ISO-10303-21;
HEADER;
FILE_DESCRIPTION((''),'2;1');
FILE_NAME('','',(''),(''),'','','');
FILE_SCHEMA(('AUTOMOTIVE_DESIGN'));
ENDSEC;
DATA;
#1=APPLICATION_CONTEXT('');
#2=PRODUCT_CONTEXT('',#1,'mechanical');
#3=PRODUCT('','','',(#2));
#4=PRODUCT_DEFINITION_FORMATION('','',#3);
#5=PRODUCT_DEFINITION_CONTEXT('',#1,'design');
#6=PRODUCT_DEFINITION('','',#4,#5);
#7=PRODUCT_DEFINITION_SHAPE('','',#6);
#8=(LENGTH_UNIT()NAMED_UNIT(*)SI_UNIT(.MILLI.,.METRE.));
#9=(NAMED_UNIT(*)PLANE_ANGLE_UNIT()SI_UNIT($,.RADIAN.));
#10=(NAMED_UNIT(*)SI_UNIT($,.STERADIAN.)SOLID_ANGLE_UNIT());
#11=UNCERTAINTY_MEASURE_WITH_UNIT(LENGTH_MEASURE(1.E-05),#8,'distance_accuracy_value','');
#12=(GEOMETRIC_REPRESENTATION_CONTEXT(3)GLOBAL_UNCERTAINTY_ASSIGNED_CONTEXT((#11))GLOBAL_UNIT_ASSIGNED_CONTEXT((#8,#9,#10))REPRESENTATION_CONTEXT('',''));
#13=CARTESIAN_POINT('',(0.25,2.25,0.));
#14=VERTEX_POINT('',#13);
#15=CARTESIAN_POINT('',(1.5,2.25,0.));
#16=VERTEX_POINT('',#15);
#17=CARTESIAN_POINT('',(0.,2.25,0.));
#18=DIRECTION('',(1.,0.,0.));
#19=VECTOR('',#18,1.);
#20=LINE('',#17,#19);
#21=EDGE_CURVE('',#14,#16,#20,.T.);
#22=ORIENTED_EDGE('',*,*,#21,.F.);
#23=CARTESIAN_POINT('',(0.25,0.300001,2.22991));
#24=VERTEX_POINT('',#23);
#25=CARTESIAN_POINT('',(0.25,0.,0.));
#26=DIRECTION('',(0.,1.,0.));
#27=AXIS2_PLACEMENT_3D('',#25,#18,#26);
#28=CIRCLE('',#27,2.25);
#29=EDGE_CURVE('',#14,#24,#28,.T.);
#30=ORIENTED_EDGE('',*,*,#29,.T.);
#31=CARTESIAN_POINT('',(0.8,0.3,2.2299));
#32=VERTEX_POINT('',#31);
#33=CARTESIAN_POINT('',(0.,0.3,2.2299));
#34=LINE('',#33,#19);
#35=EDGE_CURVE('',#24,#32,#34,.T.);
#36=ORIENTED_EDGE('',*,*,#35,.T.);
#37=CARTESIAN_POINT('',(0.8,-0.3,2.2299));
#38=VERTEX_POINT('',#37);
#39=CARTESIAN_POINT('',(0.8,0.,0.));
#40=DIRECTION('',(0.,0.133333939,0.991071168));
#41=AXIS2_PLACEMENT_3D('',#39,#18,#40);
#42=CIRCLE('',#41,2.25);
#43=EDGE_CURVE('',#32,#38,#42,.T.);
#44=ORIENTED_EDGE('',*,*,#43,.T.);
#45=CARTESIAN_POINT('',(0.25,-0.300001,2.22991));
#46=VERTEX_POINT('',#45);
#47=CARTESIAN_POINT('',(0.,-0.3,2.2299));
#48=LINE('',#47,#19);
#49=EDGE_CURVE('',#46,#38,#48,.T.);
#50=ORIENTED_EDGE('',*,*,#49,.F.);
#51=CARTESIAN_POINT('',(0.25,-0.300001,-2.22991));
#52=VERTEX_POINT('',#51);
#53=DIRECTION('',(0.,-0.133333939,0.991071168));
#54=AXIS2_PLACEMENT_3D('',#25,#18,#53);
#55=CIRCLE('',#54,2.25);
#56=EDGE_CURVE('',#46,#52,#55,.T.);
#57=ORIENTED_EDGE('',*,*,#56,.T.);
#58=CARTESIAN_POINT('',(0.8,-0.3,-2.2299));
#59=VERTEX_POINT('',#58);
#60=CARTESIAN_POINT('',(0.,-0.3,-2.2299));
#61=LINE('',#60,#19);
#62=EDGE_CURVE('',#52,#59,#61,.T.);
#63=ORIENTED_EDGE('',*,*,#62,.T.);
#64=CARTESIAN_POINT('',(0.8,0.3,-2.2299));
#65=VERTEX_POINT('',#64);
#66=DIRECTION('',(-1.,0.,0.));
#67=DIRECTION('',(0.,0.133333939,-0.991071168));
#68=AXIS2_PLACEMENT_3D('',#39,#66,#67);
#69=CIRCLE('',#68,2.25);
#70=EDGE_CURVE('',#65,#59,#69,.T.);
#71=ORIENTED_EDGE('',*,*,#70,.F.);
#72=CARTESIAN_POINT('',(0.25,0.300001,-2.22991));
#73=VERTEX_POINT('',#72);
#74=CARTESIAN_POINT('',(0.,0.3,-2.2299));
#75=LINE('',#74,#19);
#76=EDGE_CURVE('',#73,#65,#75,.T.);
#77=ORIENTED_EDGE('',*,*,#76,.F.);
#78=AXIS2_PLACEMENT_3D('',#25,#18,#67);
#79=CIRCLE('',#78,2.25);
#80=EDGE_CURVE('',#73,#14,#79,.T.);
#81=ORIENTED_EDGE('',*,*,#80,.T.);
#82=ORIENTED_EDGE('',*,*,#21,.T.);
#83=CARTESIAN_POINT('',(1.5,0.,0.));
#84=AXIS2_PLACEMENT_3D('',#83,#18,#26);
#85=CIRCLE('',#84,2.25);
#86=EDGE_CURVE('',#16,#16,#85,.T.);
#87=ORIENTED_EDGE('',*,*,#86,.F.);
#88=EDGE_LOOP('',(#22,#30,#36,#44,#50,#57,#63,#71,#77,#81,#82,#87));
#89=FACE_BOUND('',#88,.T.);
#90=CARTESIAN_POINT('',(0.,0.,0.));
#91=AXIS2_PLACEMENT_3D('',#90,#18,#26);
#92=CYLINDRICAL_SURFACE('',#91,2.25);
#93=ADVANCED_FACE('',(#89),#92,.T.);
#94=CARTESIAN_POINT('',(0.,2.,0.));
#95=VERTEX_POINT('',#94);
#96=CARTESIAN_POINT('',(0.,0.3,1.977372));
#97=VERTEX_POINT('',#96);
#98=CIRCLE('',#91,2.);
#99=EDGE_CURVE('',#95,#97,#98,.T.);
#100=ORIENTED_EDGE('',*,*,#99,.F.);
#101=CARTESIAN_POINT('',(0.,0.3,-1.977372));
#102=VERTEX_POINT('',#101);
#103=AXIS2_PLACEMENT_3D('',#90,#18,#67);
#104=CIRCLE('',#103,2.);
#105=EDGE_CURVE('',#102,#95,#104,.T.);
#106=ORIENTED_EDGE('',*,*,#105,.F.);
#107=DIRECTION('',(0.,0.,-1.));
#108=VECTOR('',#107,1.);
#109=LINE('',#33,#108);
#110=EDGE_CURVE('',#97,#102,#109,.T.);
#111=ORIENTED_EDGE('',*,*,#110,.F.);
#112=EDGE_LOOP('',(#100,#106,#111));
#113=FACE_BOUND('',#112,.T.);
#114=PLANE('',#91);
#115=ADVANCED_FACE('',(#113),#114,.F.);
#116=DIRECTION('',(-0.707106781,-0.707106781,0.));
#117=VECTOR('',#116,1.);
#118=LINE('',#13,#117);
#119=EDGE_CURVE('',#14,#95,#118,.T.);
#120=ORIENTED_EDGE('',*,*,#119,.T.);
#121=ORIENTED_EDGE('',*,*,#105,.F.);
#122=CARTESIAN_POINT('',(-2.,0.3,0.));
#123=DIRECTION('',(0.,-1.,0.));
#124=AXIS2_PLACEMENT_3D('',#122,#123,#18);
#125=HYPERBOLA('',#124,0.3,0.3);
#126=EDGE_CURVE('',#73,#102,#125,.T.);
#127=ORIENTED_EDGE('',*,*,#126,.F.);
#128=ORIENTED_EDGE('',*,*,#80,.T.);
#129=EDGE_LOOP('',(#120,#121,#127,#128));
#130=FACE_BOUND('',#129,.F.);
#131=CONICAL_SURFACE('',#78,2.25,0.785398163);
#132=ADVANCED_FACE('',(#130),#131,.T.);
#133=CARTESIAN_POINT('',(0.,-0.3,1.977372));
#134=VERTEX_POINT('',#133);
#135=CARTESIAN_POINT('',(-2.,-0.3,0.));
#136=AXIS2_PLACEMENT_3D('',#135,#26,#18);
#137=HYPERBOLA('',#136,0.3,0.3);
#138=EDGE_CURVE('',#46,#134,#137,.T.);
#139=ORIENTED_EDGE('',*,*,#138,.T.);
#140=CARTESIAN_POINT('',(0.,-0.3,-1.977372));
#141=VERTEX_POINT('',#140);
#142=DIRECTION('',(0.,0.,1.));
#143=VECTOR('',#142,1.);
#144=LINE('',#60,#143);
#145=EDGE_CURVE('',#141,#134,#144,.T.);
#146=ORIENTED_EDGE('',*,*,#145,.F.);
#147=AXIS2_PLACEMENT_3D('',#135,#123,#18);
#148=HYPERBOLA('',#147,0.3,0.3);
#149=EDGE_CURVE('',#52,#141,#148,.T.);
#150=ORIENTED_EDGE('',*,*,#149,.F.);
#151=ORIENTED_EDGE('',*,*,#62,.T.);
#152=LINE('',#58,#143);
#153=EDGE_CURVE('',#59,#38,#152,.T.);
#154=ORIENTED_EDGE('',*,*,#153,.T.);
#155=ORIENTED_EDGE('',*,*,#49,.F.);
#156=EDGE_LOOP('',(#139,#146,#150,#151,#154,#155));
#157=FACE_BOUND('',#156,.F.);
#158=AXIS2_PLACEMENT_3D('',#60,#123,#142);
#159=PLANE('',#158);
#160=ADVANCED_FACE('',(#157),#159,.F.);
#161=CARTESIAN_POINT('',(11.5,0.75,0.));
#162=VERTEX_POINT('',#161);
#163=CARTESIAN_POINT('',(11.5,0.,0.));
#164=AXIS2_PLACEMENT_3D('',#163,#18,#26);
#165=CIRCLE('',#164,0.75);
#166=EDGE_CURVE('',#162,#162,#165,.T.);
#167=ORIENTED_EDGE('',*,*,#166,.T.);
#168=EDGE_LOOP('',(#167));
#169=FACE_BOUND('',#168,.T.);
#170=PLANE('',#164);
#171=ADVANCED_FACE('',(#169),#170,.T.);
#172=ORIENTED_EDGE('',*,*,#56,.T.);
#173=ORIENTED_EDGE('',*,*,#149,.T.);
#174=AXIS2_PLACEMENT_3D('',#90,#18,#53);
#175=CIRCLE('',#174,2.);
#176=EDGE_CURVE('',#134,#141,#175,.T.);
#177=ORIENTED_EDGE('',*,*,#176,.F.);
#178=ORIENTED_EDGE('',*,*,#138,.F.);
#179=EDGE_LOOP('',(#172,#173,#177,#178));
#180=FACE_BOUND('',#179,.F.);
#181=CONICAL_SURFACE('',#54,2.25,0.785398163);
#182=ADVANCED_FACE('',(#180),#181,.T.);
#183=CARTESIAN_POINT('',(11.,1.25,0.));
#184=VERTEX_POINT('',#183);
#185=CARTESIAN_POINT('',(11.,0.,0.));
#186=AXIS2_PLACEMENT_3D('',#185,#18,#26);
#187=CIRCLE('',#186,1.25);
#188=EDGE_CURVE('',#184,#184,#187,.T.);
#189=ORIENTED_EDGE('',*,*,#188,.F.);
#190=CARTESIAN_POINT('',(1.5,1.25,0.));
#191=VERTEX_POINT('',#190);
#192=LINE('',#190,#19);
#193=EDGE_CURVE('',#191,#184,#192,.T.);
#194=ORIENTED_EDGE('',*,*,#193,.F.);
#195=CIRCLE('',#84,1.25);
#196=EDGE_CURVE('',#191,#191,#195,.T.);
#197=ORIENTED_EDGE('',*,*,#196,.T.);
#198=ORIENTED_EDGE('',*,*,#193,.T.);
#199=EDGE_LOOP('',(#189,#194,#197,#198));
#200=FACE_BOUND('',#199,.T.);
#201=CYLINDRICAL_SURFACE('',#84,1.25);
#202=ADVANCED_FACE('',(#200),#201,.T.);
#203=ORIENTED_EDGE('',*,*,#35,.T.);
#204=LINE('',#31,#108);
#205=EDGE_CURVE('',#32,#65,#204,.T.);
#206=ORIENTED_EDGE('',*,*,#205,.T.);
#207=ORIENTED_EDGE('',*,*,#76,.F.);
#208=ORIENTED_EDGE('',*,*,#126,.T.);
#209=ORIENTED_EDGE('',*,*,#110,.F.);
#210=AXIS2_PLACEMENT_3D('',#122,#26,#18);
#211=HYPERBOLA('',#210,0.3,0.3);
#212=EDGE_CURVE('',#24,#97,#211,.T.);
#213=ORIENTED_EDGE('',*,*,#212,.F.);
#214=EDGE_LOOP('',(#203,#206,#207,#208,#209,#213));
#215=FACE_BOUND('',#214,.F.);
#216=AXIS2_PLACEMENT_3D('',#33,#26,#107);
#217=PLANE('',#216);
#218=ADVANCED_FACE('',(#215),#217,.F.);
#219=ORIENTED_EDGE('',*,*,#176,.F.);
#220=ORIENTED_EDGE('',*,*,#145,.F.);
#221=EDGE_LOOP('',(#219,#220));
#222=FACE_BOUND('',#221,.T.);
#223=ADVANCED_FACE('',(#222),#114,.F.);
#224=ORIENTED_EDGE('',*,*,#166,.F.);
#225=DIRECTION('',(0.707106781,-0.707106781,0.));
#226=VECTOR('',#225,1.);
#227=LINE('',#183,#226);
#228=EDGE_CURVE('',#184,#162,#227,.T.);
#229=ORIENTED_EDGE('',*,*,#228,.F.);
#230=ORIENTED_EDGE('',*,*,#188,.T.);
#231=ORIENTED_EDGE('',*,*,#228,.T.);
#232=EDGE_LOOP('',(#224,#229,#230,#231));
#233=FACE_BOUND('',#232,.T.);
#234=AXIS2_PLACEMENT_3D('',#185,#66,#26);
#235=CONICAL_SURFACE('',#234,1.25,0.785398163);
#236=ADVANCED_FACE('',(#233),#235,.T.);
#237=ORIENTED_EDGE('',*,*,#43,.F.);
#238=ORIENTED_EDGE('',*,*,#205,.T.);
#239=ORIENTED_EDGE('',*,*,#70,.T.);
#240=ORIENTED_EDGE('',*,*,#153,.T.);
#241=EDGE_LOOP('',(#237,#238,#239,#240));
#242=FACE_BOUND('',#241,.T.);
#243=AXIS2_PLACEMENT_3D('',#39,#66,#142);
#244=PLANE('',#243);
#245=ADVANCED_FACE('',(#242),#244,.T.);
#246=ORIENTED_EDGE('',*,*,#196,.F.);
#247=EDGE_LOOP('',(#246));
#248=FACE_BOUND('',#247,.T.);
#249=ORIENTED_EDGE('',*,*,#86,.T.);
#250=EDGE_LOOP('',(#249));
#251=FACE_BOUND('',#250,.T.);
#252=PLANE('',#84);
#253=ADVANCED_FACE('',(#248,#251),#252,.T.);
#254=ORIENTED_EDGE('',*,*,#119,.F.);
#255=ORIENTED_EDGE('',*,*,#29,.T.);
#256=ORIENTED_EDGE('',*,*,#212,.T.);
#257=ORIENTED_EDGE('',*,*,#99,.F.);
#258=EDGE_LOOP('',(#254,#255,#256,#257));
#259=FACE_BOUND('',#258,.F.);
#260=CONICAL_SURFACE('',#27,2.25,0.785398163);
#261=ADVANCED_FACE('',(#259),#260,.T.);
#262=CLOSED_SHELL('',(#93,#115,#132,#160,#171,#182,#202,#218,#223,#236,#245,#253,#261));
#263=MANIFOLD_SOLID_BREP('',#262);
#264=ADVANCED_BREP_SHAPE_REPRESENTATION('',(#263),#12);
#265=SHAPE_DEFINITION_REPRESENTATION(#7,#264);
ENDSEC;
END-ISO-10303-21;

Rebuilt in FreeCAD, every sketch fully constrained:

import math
import FreeCAD as App
import Part
import Sketcher

V = App.Vector


def edges_at(feature, points):
    """Names of the edges that pass closest to the given points."""
    edges = feature.Shape.Edges
    near = lambda p: min(range(len(edges)), key=lambda i: edges[i].distToShape(Part.Vertex(*p))[0])
    return sorted({f"Edge{near(p) + 1}" for p in points})

doc = App.newDocument("Part")
body = doc.addObject("PartDesign::Body", "Body")

sketch1 = body.newObject("Sketcher::SketchObject", "Sketch")
sketch1.AttachmentSupport = (doc.getObject("XY_Plane"), [""])
sketch1.MapMode = "FlatFace"
sketch1.addGeometry([
    Part.LineSegment(V(0, 2.2, 0), V(0, 0, 0)),
    Part.LineSegment(V(0, 0, 0), V(11.5, 0, 0)),
    Part.LineSegment(V(11.5, 0, 0), V(11.5, 1.2, 0)),
    Part.LineSegment(V(11.5, 1.2, 0), V(1.5, 1.2, 0)),
    Part.LineSegment(V(1.5, 1.2, 0), V(1.5, 2.2, 0)),
    Part.LineSegment(V(1.5, 2.2, 0), V(0, 2.2, 0)),
], False)
sketch1.addConstraint([
    Sketcher.Constraint("Coincident", 0, 2, 1, 1),
    Sketcher.Constraint("Coincident", 1, 2, 2, 1),
    Sketcher.Constraint("Coincident", 2, 2, 3, 1),
    Sketcher.Constraint("Coincident", 3, 2, 4, 1),
    Sketcher.Constraint("Coincident", 4, 2, 5, 1),
    Sketcher.Constraint("Coincident", 5, 2, 0, 1),
    Sketcher.Constraint("Vertical", 0),
    Sketcher.Constraint("Horizontal", 1),
    Sketcher.Constraint("Vertical", 2),
    Sketcher.Constraint("Horizontal", 3),
    Sketcher.Constraint("Vertical", 4),
    Sketcher.Constraint("Horizontal", 5),
    Sketcher.Constraint("Coincident", 0, 2, -1, 1),
    Sketcher.Constraint("DistanceX", 3, 2, 3, 1, 10.0),
    Sketcher.Constraint("DistanceX", 5, 2, 5, 1, 1.5),
    Sketcher.Constraint("DistanceY", 4, 1, 4, 2, 1.0),
    Sketcher.Constraint("DistanceY", 0, 2, 0, 1, 2.25),
])
revolution = body.newObject("PartDesign::Revolution", "Revolution")
revolution.Profile = sketch1
revolution.ReferenceAxis = (sketch1, ["H_Axis"])
revolution.Angle = 360

sketch2 = body.newObject("Sketcher::SketchObject", "Sketch001")
sketch2.AttachmentSupport = (doc.getObject("YZ_Plane"), [""])
sketch2.MapMode = "FlatFace"
sketch2.addGeometry([
    Part.ArcOfCircle(Part.Circle(V(0, 0, 0), V(0, 0, 1), 2.2), math.radians(-97.66), math.radians(-82.34)),
    Part.LineSegment(V(-0.3, -2.2, 0), V(-0.3, 2.2, 0)),
    Part.ArcOfCircle(Part.Circle(V(0, 0, 0), V(0, 0, 1), 2.2), math.radians(82.34), math.radians(97.66)),
    Part.LineSegment(V(0.3, 2.2, 0), V(0.3, -2.2, 0)),
], False)
sketch2.addConstraint([
    Sketcher.Constraint("Coincident", 0, 1, 1, 1),
    Sketcher.Constraint("Coincident", 1, 2, 2, 2),
    Sketcher.Constraint("Coincident", 2, 1, 3, 1),
    Sketcher.Constraint("Coincident", 3, 2, 0, 2),
    Sketcher.Constraint("Vertical", 1),
    Sketcher.Constraint("Vertical", 3),
    Sketcher.Constraint("Coincident", 0, 3, -1, 1),
    Sketcher.Constraint("Coincident", 2, 3, -1, 1),
    Sketcher.Constraint("Equal", 0, 2),
    Sketcher.Constraint("Horizontal", 1, 2, 2, 1),
    Sketcher.Constraint("DistanceX", 1, 2, 2, 1, 0.6),
    Sketcher.Constraint("Radius", 0, 2.25),
])
pocket1 = body.newObject("PartDesign::Pocket", "Pocket")
pocket1.Profile = sketch2
pocket1.Length = 0.8
pocket1.Reversed = True
doc.recompute()

chamfer = body.newObject("PartDesign::Chamfer", "Chamfer")
chamfer.Base = (pocket1, edges_at(pocket1, [(11.5, -1.25, 0)]))
chamfer.Size = 0.5
doc.recompute()

chamfer2 = body.newObject("PartDesign::Chamfer", "Chamfer001")
chamfer2.Base = (chamfer, edges_at(chamfer, [(0, -2.25, 0), (0, 1.694, 1.481), (0, 1.694, -1.481)]))
chamfer2.Size = 0.25

doc.recompute()
